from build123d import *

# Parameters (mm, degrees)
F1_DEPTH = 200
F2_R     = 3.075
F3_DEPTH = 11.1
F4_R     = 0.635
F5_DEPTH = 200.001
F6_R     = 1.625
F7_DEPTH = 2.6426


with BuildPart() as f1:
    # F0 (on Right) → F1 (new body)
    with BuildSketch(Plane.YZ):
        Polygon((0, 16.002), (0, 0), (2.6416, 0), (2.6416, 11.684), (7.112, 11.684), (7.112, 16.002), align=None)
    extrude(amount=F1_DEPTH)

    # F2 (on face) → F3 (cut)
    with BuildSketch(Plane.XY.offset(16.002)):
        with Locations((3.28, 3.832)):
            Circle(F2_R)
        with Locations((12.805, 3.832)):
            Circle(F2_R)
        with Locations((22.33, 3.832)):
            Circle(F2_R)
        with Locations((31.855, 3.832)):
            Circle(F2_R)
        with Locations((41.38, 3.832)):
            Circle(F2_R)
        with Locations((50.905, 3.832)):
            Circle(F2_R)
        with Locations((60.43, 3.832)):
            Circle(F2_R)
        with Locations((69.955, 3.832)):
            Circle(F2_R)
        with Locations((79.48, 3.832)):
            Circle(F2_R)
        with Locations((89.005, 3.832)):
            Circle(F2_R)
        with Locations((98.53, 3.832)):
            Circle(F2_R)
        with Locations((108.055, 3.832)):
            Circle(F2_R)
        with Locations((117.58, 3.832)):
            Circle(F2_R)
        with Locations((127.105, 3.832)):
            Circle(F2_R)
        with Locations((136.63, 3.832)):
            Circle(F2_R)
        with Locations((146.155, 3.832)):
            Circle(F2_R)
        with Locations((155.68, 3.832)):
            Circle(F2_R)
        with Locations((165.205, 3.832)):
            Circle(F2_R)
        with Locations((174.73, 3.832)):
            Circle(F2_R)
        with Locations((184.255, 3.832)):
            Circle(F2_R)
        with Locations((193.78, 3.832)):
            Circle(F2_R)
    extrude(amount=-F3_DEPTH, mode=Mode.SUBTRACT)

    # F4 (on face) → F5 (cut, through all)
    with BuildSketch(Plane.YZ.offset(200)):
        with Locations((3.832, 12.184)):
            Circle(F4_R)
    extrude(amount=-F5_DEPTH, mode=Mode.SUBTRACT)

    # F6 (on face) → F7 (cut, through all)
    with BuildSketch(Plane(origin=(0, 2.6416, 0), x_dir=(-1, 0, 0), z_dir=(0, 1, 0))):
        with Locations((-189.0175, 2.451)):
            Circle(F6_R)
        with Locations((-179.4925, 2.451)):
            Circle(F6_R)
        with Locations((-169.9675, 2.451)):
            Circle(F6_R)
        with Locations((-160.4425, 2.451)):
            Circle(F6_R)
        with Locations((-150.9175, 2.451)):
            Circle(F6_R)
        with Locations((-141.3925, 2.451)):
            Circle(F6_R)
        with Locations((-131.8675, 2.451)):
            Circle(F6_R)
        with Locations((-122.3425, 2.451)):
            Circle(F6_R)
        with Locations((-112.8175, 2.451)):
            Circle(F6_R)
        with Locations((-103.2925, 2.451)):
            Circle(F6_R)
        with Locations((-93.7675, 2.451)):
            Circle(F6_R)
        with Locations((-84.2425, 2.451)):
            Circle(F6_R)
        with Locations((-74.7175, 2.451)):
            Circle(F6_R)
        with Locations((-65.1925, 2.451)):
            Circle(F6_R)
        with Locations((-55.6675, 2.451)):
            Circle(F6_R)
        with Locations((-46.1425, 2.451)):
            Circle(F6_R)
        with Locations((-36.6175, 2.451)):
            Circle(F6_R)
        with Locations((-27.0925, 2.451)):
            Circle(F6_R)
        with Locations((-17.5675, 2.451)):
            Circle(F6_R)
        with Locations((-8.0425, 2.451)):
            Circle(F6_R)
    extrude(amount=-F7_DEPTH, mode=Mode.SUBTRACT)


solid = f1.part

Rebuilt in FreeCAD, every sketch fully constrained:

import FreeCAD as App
import Part
import Sketcher
from FreeCAD import Vector
Q = App.Units.Quantity

doc = App.newDocument("Part")
body = doc.addObject("PartDesign::Body", "Body")

# Sketch on YZ plane
sketch1 = body.newObject("Sketcher::SketchObject", "Sketch")
sketch1.AttachmentSupport = (doc.getObject("YZ_Plane"), [""])
sketch1.MapMode = "FlatFace"
sketch1.addGeometry([
    Part.LineSegment(Vector(0, 16, 0), Vector(0, 0, 0)),  # 0
    Part.LineSegment(Vector(0, 0, 0), Vector(2.6, 0, 0)),  # 1
    Part.LineSegment(Vector(2.6, 0, 0), Vector(2.6, 11.7, 0)),  # 2
    Part.LineSegment(Vector(2.6, 11.7, 0), Vector(7.1, 11.7, 0)),  # 3
    Part.LineSegment(Vector(7.1, 11.7, 0), Vector(7.1, 16, 0)),  # 4
    Part.LineSegment(Vector(7.1, 16, 0), Vector(0, 16, 0)),  # 5
], False)
sketch1.addConstraint([
    Sketcher.Constraint("Coincident", 0, 2, 1, 1),
    Sketcher.Constraint("Coincident", 1, 2, 2, 1),
    Sketcher.Constraint("Coincident", 2, 2, 3, 1),
    Sketcher.Constraint("Coincident", 3, 2, 4, 1),
    Sketcher.Constraint("Coincident", 4, 2, 5, 1),
    Sketcher.Constraint("Coincident", 5, 2, 0, 1),
    Sketcher.Constraint("Vertical", 0),
    Sketcher.Constraint("Horizontal", 1),
    Sketcher.Constraint("Vertical", 2),
    Sketcher.Constraint("Horizontal", 3),
    Sketcher.Constraint("Vertical", 4),
    Sketcher.Constraint("Horizontal", 5),
    Sketcher.Constraint("Coincident", 0, 2, -1, 1),
    Sketcher.Constraint("DistanceX", 5, 2, 5, 1, Q("0.28 in")),
    Sketcher.Constraint("DistanceY", 0, 2, 0, 1, Q("0.63 in")),
    Sketcher.Constraint("DistanceY", 2, 1, 2, 2, Q("0.46 in")),
    Sketcher.Constraint("DistanceX", 1, 1, 1, 2, Q("0.104 in")),
])
pad1 = body.newObject("PartDesign::Pad", "Pad")
pad1.Profile = sketch1
pad1.Length = 200

# Sketch on XY plane
sketch2 = body.newObject("Sketcher::SketchObject", "Sketch001")
sketch2.AttachmentSupport = (doc.getObject("XY_Plane"), [""])
sketch2.MapMode = "FlatFace"
sketch2.AttachmentOffset = App.Placement(Vector(0, 0, 0.63 * 25.4), App.Rotation())
sketch2.addGeometry([
    Part.Circle(Vector(3.3, 3.8, 0), Vector(0, 0, 1), 3.1),  # 0
    Part.Circle(Vector(12.8, 3.8, 0), Vector(0, 0, 1), 3.1),  # 1
    Part.Circle(Vector(22.3, 3.8, 0), Vector(0, 0, 1), 3.1),  # 2
    Part.Circle(Vector(31.9, 3.8, 0), Vector(0, 0, 1), 3.1),  # 3
    Part.Circle(Vector(41.4, 3.8, 0), Vector(0, 0, 1), 3.1),  # 4
    Part.Circle(Vector(50.9, 3.8, 0), Vector(0, 0, 1), 3.1),  # 5
    Part.Circle(Vector(60.4, 3.8, 0), Vector(0, 0, 1), 3.1),  # 6
    Part.Circle(Vector(70, 3.8, 0), Vector(0, 0, 1), 3.1),  # 7
    Part.Circle(Vector(79.5, 3.8, 0), Vector(0, 0, 1), 3.1),  # 8
    Part.Circle(Vector(89, 3.8, 0), Vector(0, 0, 1), 3.1),  # 9
    Part.Circle(Vector(98.5, 3.8, 0), Vector(0, 0, 1), 3.1),  # 10
    Part.Circle(Vector(108.1, 3.8, 0), Vector(0, 0, 1), 3.1),  # 11
    Part.Circle(Vector(117.6, 3.8, 0), Vector(0, 0, 1), 3.1),  # 12
    Part.Circle(Vector(127.1, 3.8, 0), Vector(0, 0, 1), 3.1),  # 13
    Part.Circle(Vector(136.6, 3.8, 0), Vector(0, 0, 1), 3.1),  # 14
    Part.Circle(Vector(146.2, 3.8, 0), Vector(0, 0, 1), 3.1),  # 15
    Part.Circle(Vector(155.7, 3.8, 0), Vector(0, 0, 1), 3.1),  # 16
    Part.Circle(Vector(165.2, 3.8, 0), Vector(0, 0, 1), 3.1),  # 17
    Part.Circle(Vector(174.7, 3.8, 0), Vector(0, 0, 1), 3.1),  # 18
    Part.Circle(Vector(184.3, 3.8, 0), Vector(0, 0, 1), 3.1),  # 19
    Part.Circle(Vector(193.8, 3.8, 0), Vector(0, 0, 1), 3.1),  # 20
], False)
sketch2.addConstraint([
    Sketcher.Constraint("Equal", 0, 1),
    Sketcher.Constraint("Equal", 1, 2),
    Sketcher.Constraint("Equal", 2, 3),
    Sketcher.Constraint("Equal", 3, 4),
    Sketcher.Constraint("Equal", 4, 5),
    Sketcher.Constraint("Equal", 5, 6),
    Sketcher.Constraint("Equal", 6, 7),
    Sketcher.Constraint("Equal", 7, 8),
    Sketcher.Constraint("Equal", 8, 9),
    Sketcher.Constraint("Equal", 9, 10),
    Sketcher.Constraint("Equal", 10, 11),
    Sketcher.Constraint("Equal", 11, 12),
    Sketcher.Constraint("Equal", 12, 13),
    Sketcher.Constraint("Equal", 13, 14),
    Sketcher.Constraint("Equal", 14, 15),
    Sketcher.Constraint("Equal", 15, 16),
    Sketcher.Constraint("Equal", 16, 17),
    Sketcher.Constraint("Equal", 17, 18),
    Sketcher.Constraint("Equal", 18, 19),
    Sketcher.Constraint("Equal", 19, 20),
    Sketcher.Constraint("Horizontal", 0, 3, 1, 3),
    Sketcher.Constraint("Horizontal", 1, 3, 2, 3),
    Sketcher.Constraint("Horizontal", 2, 3, 3, 3),
    Sketcher.Constraint("Horizontal", 3, 3, 4, 3),
    Sketcher.Constraint("Horizontal", 4, 3, 5, 3),
    Sketcher.Constraint("Horizontal", 5, 3, 6, 3),
    Sketcher.Constraint("Horizontal", 6, 3, 7, 3),
    Sketcher.Constraint("Horizontal", 7, 3, 8, 3),
    Sketcher.Constraint("Horizontal", 8, 3, 9, 3),
    Sketcher.Constraint("Horizontal", 9, 3, 10, 3),
    Sketcher.Constraint("Horizontal", 10, 3, 11, 3),
    Sketcher.Constraint("Horizontal", 11, 3, 12, 3),
    Sketcher.Constraint("Horizontal", 12, 3, 13, 3),
    Sketcher.Constraint("Horizontal", 13, 3, 14, 3),
    Sketcher.Constraint("Horizontal", 14, 3, 15, 3),
    Sketcher.Constraint("Horizontal", 15, 3, 16, 3),
    Sketcher.Constraint("Horizontal", 16, 3, 17, 3),
    Sketcher.Constraint("Horizontal", 17, 3, 18, 3),
    Sketcher.Constraint("Horizontal", 18, 3, 19, 3),
    Sketcher.Constraint("Horizontal", 19, 3, 20, 3),
    Sketcher.Constraint("DistanceX", 0, 3, 4, 3, Q("1.5 in")),
    Sketcher.Constraint("DistanceX", 1, 3, 5, 3, Q("1.5 in")),
    Sketcher.Constraint("DistanceX", 2, 3, 6, 3, Q("1.5 in")),
    Sketcher.Constraint("DistanceX", 3, 3, 7, 3, Q("1.5 in")),
    Sketcher.Constraint("DistanceX", 4, 3, 8, 3, Q("1.5 in")),
    Sketcher.Constraint("DistanceX", 5, 3, 9, 3, Q("1.5 in")),
    Sketcher.Constraint("DistanceX", 6, 3, 10, 3, Q("1.5 in")),
    Sketcher.Constraint("DistanceX", 7, 3, 11, 3, Q("1.5 in")),
    Sketcher.Constraint("DistanceX", 8, 3, 12, 3, Q("1.5 in")),
    Sketcher.Constraint("DistanceX", 9, 3, 13, 3, Q("1.5 in")),
    Sketcher.Constraint("DistanceX", 10, 3, 14, 3, Q("1.5 in")),
    Sketcher.Constraint("DistanceX", 11, 3, 15, 3, Q("1.5 in")),
    Sketcher.Constraint("DistanceX", 12, 3, 16, 3, Q("1.5 in")),
    Sketcher.Constraint("DistanceX", 13, 3, 17, 3, Q("1.5 in")),
    Sketcher.Constraint("DistanceX", 14, 3, 18, 3, Q("1.5 in")),
    Sketcher.Constraint("DistanceX", 15, 3, 19, 3, Q("1.5 in")),
    Sketcher.Constraint("DistanceX", 16, 3, 20, 3, Q("1.5 in")),
    Sketcher.Constraint("Diameter", 0, 6.15),
    Sketcher.Constraint("DistanceX", 0, 3, 2, 3, Q("0.75 in")),
    Sketcher.Constraint("DistanceX", 1, 3, 3, 3, Q("0.75 in")),
    Sketcher.Constraint("DistanceX", 0, 3, 1, 3, Q("0.375 in")),
    Sketcher.Constraint("DistanceX", -1, 1, 0, 3, 3.28),
    Sketcher.Constraint("DistanceY", -1, 1, 0, 3, 3.832),
])
pocket1 = body.newObject("PartDesign::Pocket", "Pocket")
pocket1.Profile = sketch2
pocket1.Length = 11.1

# Sketch on YZ plane
sketch3 = body.newObject("Sketcher::SketchObject", "Sketch002")
sketch3.AttachmentSupport = (doc.getObject("YZ_Plane"), [""])
sketch3.MapMode = "FlatFace"
sketch3.AttachmentOffset = App.Placement(Vector(0, 0, 200), App.Rotation())
sketch3.addGeometry(Part.Circle(Vector(3.8, 12.2, 0), Vector(0, 0, 1), 0.6), False)
sketch3.addConstraint([
    Sketcher.Constraint("Diameter", 0, Q("0.05 in")),
    Sketcher.Constraint("DistanceX", -1, 1, 0, 3, 3.832),
    Sketcher.Constraint("DistanceY", -1, 1, 0, 3, 12.184),
])
pocket2 = body.newObject("PartDesign::Pocket", "Pocket001")
pocket2.Profile = sketch3
pocket2.Type = "ThroughAll"

# Sketch on XZ plane
sketch4 = body.newObject("Sketcher::SketchObject", "Sketch003")
sketch4.AttachmentSupport = (doc.getObject("XZ_Plane"), [""])
sketch4.MapMode = "FlatFace"
sketch4.AttachmentOffset = App.Placement(Vector(0, 0, -0.104 * 25.4), App.Rotation())
sketch4.addGeometry([
    Part.Circle(Vector(189, 2.5, 0), Vector(0, 0, 1), 1.6),  # 0
    Part.Circle(Vector(179.5, 2.5, 0), Vector(0, 0, 1), 1.6),  # 1
    Part.Circle(Vector(170, 2.5, 0), Vector(0, 0, 1), 1.6),  # 2
    Part.Circle(Vector(160.4, 2.5, 0), Vector(0, 0, 1), 1.6),  # 3
    Part.Circle(Vector(150.9, 2.5, 0), Vector(0, 0, 1), 1.6),  # 4
    Part.Circle(Vector(141.4, 2.5, 0), Vector(0, 0, 1), 1.6),  # 5
    Part.Circle(Vector(131.9, 2.5, 0), Vector(0, 0, 1), 1.6),  # 6
    Part.Circle(Vector(122.3, 2.5, 0), Vector(0, 0, 1), 1.6),  # 7
    Part.Circle(Vector(112.8, 2.5, 0), Vector(0, 0, 1), 1.6),  # 8
    Part.Circle(Vector(103.3, 2.5, 0), Vector(0, 0, 1), 1.6),  # 9
    Part.Circle(Vector(93.8, 2.5, 0), Vector(0, 0, 1), 1.6),  # 10
    Part.Circle(Vector(84.2, 2.5, 0), Vector(0, 0, 1), 1.6),  # 11
    Part.Circle(Vector(74.7, 2.5, 0), Vector(0, 0, 1), 1.6),  # 12
    Part.Circle(Vector(65.2, 2.5, 0), Vector(0, 0, 1), 1.6),  # 13
    Part.Circle(Vector(55.7, 2.5, 0), Vector(0, 0, 1), 1.6),  # 14
    Part.Circle(Vector(46.1, 2.5, 0), Vector(0, 0, 1), 1.6),  # 15
    Part.Circle(Vector(36.6, 2.5, 0), Vector(0, 0, 1), 1.6),  # 16
    Part.Circle(Vector(27.1, 2.5, 0), Vector(0, 0, 1), 1.6),  # 17
    Part.Circle(Vector(17.6, 2.5, 0), Vector(0, 0, 1), 1.6),  # 18
    Part.Circle(Vector(8, 2.5, 0), Vector(0, 0, 1), 1.6),  # 19
], False)
sketch4.addConstraint([
    Sketcher.Constraint("Equal", 0, 1),
    Sketcher.Constraint("Equal", 1, 2),
    Sketcher.Constraint("Equal", 2, 3),
    Sketcher.Constraint("Equal", 3, 4),
    Sketcher.Constraint("Equal", 4, 5),
    Sketcher.Constraint("Equal", 5, 6),
    Sketcher.Constraint("Equal", 6, 7),
    Sketcher.Constraint("Equal", 7, 8),
    Sketcher.Constraint("Equal", 8, 9),
    Sketcher.Constraint("Equal", 9, 10),
    Sketcher.Constraint("Equal", 10, 11),
    Sketcher.Constraint("Equal", 11, 12),
    Sketcher.Constraint("Equal", 12, 13),
    Sketcher.Constraint("Equal", 13, 14),
    Sketcher.Constraint("Equal", 14, 15),
    Sketcher.Constraint("Equal", 15, 16),
    Sketcher.Constraint("Equal", 16, 17),
    Sketcher.Constraint("Equal", 17, 18),
    Sketcher.Constraint("Equal", 18, 19),
    Sketcher.Constraint("Horizontal", 0, 3, 1, 3),
    Sketcher.Constraint("Horizontal", 1, 3, 2, 3),
    Sketcher.Constraint("Horizontal", 2, 3, 3, 3),
    Sketcher.Constraint("Horizontal", 3, 3, 4, 3),
    Sketcher.Constraint("Horizontal", 4, 3, 5, 3),
    Sketcher.Constraint("Horizontal", 5, 3, 6, 3),
    Sketcher.Constraint("Horizontal", 6, 3, 7, 3),
    Sketcher.Constraint("Horizontal", 7, 3, 8, 3),
    Sketcher.Constraint("Horizontal", 8, 3, 9, 3),
    Sketcher.Constraint("Horizontal", 9, 3, 10, 3),
    Sketcher.Constraint("Horizontal", 10, 3, 11, 3),
    Sketcher.Constraint("Horizontal", 11, 3, 12, 3),
    Sketcher.Constraint("Horizontal", 12, 3, 13, 3),
    Sketcher.Constraint("Horizontal", 13, 3, 14, 3),
    Sketcher.Constraint("Horizontal", 14, 3, 15, 3),
    Sketcher.Constraint("Horizontal", 15, 3, 16, 3),
    Sketcher.Constraint("Horizontal", 16, 3, 17, 3),
    Sketcher.Constraint("Horizontal", 17, 3, 18, 3),
    Sketcher.Constraint("Horizontal", 18, 3, 19, 3),
    Sketcher.Constraint("DistanceX", 4, 3, 0, 3, Q("1.5 in")),
    Sketcher.Constraint("DistanceX", 5, 3, 1, 3, Q("1.5 in")),
    Sketcher.Constraint("DistanceX", 6, 3, 2, 3, Q("1.5 in")),
    Sketcher.Constraint("DistanceX", 7, 3, 3, 3, Q("1.5 in")),
    Sketcher.Constraint("DistanceX", 8, 3, 4, 3, Q("1.5 in")),
    Sketcher.Constraint("DistanceX", 9, 3, 5, 3, Q("1.5 in")),
    Sketcher.Constraint("DistanceX", 10, 3, 6, 3, Q("1.5 in")),
    Sketcher.Constraint("DistanceX", 11, 3, 7, 3, Q("1.5 in")),
    Sketcher.Constraint("DistanceX", 12, 3, 8, 3, Q("1.5 in")),
    Sketcher.Constraint("DistanceX", 13, 3, 9, 3, Q("1.5 in")),
    Sketcher.Constraint("DistanceX", 14, 3, 10, 3, Q("1.5 in")),
    Sketcher.Constraint("DistanceX", 15, 3, 11, 3, Q("1.5 in")),
    Sketcher.Constraint("DistanceX", 16, 3, 12, 3, Q("1.5 in")),
    Sketcher.Constraint("DistanceX", 17, 3, 13, 3, Q("1.5 in")),
    Sketcher.Constraint("DistanceX", 18, 3, 14, 3, Q("1.5 in")),
    Sketcher.Constraint("DistanceX", 19, 3, 15, 3, Q("1.5 in")),
    Sketcher.Constraint("Diameter", 0, 3.25),
    Sketcher.Constraint("DistanceX", 2, 3, 0, 3, Q("0.75 in")),
    Sketcher.Constraint("DistanceX", 3, 3, 1, 3, Q("0.75 in")),
    Sketcher.Constraint("DistanceX", 1, 3, 0, 3, Q("0.375 in")),
    Sketcher.Constraint("DistanceX", -1, 1, 0, 3, 189.0175),
    Sketcher.Constraint("DistanceY", -1, 1, 0, 3, 2.451),
])
pocket3 = body.newObject("PartDesign::Pocket", "Pocket002")
pocket3.Profile = sketch4
pocket3.Type = "ThroughAll"
pocket3.Reversed = True

doc.recompute()
